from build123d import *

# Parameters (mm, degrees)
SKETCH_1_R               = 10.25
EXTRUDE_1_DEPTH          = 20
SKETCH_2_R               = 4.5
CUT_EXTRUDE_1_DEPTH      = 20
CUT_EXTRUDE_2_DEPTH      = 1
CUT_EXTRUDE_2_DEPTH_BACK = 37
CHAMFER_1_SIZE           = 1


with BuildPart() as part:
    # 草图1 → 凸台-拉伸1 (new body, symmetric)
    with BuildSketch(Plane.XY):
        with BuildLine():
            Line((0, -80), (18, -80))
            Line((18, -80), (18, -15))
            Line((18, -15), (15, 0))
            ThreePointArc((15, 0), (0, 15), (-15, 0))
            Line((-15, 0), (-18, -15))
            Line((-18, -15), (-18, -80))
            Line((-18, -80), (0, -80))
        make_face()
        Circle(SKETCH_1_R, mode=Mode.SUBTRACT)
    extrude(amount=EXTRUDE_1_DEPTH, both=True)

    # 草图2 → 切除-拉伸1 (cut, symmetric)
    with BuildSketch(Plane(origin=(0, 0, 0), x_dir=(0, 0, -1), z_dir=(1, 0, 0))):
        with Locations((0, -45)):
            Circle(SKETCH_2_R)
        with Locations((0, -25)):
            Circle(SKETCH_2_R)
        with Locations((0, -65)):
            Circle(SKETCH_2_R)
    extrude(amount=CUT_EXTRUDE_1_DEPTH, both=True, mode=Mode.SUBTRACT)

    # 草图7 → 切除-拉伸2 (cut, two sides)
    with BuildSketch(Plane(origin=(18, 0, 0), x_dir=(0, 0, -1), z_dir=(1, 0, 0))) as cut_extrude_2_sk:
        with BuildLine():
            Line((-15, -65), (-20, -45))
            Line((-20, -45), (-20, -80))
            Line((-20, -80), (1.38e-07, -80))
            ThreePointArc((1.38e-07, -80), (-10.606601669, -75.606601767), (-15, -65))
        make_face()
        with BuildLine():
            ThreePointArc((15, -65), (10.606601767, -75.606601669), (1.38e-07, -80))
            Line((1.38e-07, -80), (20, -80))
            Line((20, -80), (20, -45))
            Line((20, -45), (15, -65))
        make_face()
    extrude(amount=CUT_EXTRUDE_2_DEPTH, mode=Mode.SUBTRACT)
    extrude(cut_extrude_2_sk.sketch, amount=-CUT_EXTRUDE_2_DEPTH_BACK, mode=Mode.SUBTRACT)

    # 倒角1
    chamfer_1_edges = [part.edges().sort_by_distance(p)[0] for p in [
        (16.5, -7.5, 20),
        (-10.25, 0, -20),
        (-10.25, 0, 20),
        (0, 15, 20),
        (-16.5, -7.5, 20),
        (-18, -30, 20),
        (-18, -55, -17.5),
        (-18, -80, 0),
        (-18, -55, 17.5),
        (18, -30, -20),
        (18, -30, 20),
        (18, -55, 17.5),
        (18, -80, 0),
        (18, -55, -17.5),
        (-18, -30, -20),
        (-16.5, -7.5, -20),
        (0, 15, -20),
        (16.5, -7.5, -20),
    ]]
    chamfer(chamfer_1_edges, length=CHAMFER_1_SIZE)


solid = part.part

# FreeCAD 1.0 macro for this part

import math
import FreeCAD as App
import Part
import Sketcher
from FreeCAD import Vector


def edges_at(feature, points):
    """Names of the edges that pass closest to the given points."""
    edges = feature.Shape.Edges
    near = lambda p: min(range(len(edges)), key=lambda i: edges[i].distToShape(Part.Vertex(*p))[0])
    return sorted({f"Edge{near(p) + 1}" for p in points})

doc = App.newDocument("Part")
body = doc.addObject("PartDesign::Body", "Body")

sketch1 = doc.addObject("Sketcher::SketchObject", "Sketch")
body.addObject(sketch1)
sketch1.AttachmentSupport = (doc.XY_Plane, [""])
sketch1.MapMode = "FlatFace"
sketch1.addGeometry([
    Part.LineSegment(Vector(18, -80, 0), Vector(18, -15, 0)),
    Part.LineSegment(Vector(18, -15, 0), Vector(15, 0, 0)),
    Part.ArcOfCircle(Part.Circle(Vector(0, 0, 0), Vector(0, 0, 1), 15), math.radians(0), math.radians(180)),
    Part.LineSegment(Vector(-15, 0, 0), Vector(-18, -15, 0)),
    Part.LineSegment(Vector(-18, -15, 0), Vector(-18, -80, 0)),
    Part.LineSegment(Vector(-18, -80, 0), Vector(18, -80, 0)),
    Part.Circle(Vector(0, 0, 0), Vector(0, 0, 1), 10),
], False)
sketch1.addConstraint([
    Sketcher.Constraint("Coincident", 0, 2, 1, 1),
    Sketcher.Constraint("Coincident", 1, 2, 2, 1),
    Sketcher.Constraint("Coincident", 2, 2, 3, 1),
    Sketcher.Constraint("Coincident", 3, 2, 4, 1),
    Sketcher.Constraint("Coincident", 4, 2, 5, 1),
    Sketcher.Constraint("Coincident", 5, 2, 0, 1),
    Sketcher.Constraint("Vertical", 0),
    Sketcher.Constraint("Vertical", 4),
    Sketcher.Constraint("Horizontal", 5),
    Sketcher.Constraint("Coincident", 2, 3, -1, 1),
    Sketcher.Constraint("Coincident", 6, 3, -1, 1),
    Sketcher.Constraint("Symmetric", 0, 2, 3, 2, -2),
    Sketcher.Constraint("PointOnObject", 1, 2, -1),
    Sketcher.Constraint("PointOnObject", 2, 2, -1),
    Sketcher.Constraint("Radius", 2, 15.0),
    Sketcher.Constraint("Diameter", 6, 20.5),
    Sketcher.Constraint("DistanceX", 5, 1, 5, 2, 36.0),
    Sketcher.Constraint("DistanceY", 0, 1, 0, 2, 65.0),
    Sketcher.Constraint("DistanceY", 0, 2, -1, 1, 15.0),
])
pad1 = doc.addObject("PartDesign::Pad", "Pad")
body.addObject(pad1)
pad1.Profile = sketch1
pad1.Length = 40
pad1.Midplane = True

sketch2 = doc.addObject("Sketcher::SketchObject", "Sketch001")
body.addObject(sketch2)
sketch2.AttachmentSupport = (doc.YZ_Plane, [""])
sketch2.MapMode = "FlatFace"
sketch2.addGeometry([
    Part.Circle(Vector(-45, 0, 0), Vector(0, 0, 1), 4.5),
    Part.Circle(Vector(-25, 0, 0), Vector(0, 0, 1), 4.5),
    Part.Circle(Vector(-65, 0, 0), Vector(0, 0, 1), 4.5),
], False)
sketch2.addConstraint([
    Sketcher.Constraint("Equal", 0, 1),
    Sketcher.Constraint("Equal", 1, 2),
    Sketcher.Constraint("PointOnObject", 0, 3, -1),
    Sketcher.Constraint("PointOnObject", 1, 3, -1),
    Sketcher.Constraint("PointOnObject", 2, 3, -1),
    Sketcher.Constraint("Diameter", 0, 9.0),
    Sketcher.Constraint("DistanceX", 0, 3, -1, 1, 45.0),
    Sketcher.Constraint("DistanceX", 1, 3, -1, 1, 25.0),
    Sketcher.Constraint("DistanceX", 2, 3, -1, 1, 65.0),
])
pocket1 = doc.addObject("PartDesign::Pocket", "Pocket")
body.addObject(pocket1)
pocket1.Profile = sketch2
pocket1.Length = 40
pocket1.Midplane = True

sketch3 = doc.addObject("Sketcher::SketchObject", "Sketch002")
body.addObject(sketch3)
sketch3.AttachmentSupport = (doc.YZ_Plane, [""])
sketch3.MapMode = "FlatFace"
sketch3.AttachmentOffset = App.Placement(Vector(0, 0, 18), App.Rotation())
sketch3.addGeometry([
    Part.LineSegment(Vector(-65, 15, 0), Vector(-45, 20, 0)),
    Part.LineSegment(Vector(-45, 20, 0), Vector(-80, 20, 0)),
    Part.LineSegment(Vector(-80, 20, 0), Vector(-80, 0, 0)),
    Part.ArcOfCircle(Part.Circle(Vector(-65, 0, 0), Vector(0, 0, 1), 15), math.radians(90), math.radians(180)),
    Part.ArcOfCircle(Part.Circle(Vector(-65, 0, 0), Vector(0, 0, 1), 15), math.radians(-180), math.radians(-90)),
    Part.LineSegment(Vector(-80, 0, 0), Vector(-80, -20, 0)),
    Part.LineSegment(Vector(-80, -20, 0), Vector(-45, -20, 0)),
    Part.LineSegment(Vector(-45, -20, 0), Vector(-65, -15, 0)),
], False)
sketch3.addConstraint([
    Sketcher.Constraint("Coincident", 0, 2, 1, 1),
    Sketcher.Constraint("Coincident", 1, 2, 2, 1),
    Sketcher.Constraint("Tangent", 2, 2, 3, 2),
    Sketcher.Constraint("Coincident", 3, 1, 0, 1),
    Sketcher.Constraint("Tangent", 4, 1, 5, 1),
    Sketcher.Constraint("Coincident", 5, 2, 6, 1),
    Sketcher.Constraint("Coincident", 6, 2, 7, 1),
    Sketcher.Constraint("Coincident", 7, 2, 4, 2),
    Sketcher.Constraint("Horizontal", 1),
    Sketcher.Constraint("Vertical", 2),
    Sketcher.Constraint("Vertical", 5),
    Sketcher.Constraint("Horizontal", 6),
    Sketcher.Constraint("Coincident", 4, 3, 3, 3),
    Sketcher.Constraint("Equal", 3, 4),
    Sketcher.Constraint("Symmetric", 0, 2, 6, 2, -1),
    Sketcher.Constraint("Symmetric", 3, 1, 7, 2, -1),
    Sketcher.Constraint("Vertical", 4, 3, 3, 1),
    Sketcher.Constraint("Radius", 3, 15.0),
    Sketcher.Constraint("DistanceX", 1, 2, 1, 1, 35.0),
    Sketcher.Constraint("DistanceY", 2, 2, 2, 1, 20.0),
    Sketcher.Constraint("DistanceX", 3, 3, -1, 1, 65.0),
])
pocket2 = doc.addObject("PartDesign::Pocket", "Pocket001")
body.addObject(pocket2)
pocket2.Profile = sketch3
pocket2.Type = "ThroughAll"
pocket2.Midplane = True
doc.recompute()

chamfer = doc.addObject("PartDesign::Chamfer", "Chamfer")
body.addObject(chamfer)
chamfer.Base = (pocket2, edges_at(pocket2, [
    (16.5, -7.5, 20),
    (-10.25, 0, -20),
    (-10.25, 0, 20),
    (0, 15, 20),
    (-16.5, -7.5, 20),
    (-18, -30, 20),
    (-18, -55, -17.5),
    (-18, -75.607, 10.607),
    (-18, -55, 17.5),
    (18, -30, -20),
    (18, -30, 20),
    (18, -55, 17.5),
    (18, -75.607, 10.607),
    (18, -55, -17.5),
    (-18, -30, -20),
    (-16.5, -7.5, -20),
    (0, 15, -20),
    (16.5, -7.5, -20),
]))
chamfer.Size = 1

doc.recompute()
